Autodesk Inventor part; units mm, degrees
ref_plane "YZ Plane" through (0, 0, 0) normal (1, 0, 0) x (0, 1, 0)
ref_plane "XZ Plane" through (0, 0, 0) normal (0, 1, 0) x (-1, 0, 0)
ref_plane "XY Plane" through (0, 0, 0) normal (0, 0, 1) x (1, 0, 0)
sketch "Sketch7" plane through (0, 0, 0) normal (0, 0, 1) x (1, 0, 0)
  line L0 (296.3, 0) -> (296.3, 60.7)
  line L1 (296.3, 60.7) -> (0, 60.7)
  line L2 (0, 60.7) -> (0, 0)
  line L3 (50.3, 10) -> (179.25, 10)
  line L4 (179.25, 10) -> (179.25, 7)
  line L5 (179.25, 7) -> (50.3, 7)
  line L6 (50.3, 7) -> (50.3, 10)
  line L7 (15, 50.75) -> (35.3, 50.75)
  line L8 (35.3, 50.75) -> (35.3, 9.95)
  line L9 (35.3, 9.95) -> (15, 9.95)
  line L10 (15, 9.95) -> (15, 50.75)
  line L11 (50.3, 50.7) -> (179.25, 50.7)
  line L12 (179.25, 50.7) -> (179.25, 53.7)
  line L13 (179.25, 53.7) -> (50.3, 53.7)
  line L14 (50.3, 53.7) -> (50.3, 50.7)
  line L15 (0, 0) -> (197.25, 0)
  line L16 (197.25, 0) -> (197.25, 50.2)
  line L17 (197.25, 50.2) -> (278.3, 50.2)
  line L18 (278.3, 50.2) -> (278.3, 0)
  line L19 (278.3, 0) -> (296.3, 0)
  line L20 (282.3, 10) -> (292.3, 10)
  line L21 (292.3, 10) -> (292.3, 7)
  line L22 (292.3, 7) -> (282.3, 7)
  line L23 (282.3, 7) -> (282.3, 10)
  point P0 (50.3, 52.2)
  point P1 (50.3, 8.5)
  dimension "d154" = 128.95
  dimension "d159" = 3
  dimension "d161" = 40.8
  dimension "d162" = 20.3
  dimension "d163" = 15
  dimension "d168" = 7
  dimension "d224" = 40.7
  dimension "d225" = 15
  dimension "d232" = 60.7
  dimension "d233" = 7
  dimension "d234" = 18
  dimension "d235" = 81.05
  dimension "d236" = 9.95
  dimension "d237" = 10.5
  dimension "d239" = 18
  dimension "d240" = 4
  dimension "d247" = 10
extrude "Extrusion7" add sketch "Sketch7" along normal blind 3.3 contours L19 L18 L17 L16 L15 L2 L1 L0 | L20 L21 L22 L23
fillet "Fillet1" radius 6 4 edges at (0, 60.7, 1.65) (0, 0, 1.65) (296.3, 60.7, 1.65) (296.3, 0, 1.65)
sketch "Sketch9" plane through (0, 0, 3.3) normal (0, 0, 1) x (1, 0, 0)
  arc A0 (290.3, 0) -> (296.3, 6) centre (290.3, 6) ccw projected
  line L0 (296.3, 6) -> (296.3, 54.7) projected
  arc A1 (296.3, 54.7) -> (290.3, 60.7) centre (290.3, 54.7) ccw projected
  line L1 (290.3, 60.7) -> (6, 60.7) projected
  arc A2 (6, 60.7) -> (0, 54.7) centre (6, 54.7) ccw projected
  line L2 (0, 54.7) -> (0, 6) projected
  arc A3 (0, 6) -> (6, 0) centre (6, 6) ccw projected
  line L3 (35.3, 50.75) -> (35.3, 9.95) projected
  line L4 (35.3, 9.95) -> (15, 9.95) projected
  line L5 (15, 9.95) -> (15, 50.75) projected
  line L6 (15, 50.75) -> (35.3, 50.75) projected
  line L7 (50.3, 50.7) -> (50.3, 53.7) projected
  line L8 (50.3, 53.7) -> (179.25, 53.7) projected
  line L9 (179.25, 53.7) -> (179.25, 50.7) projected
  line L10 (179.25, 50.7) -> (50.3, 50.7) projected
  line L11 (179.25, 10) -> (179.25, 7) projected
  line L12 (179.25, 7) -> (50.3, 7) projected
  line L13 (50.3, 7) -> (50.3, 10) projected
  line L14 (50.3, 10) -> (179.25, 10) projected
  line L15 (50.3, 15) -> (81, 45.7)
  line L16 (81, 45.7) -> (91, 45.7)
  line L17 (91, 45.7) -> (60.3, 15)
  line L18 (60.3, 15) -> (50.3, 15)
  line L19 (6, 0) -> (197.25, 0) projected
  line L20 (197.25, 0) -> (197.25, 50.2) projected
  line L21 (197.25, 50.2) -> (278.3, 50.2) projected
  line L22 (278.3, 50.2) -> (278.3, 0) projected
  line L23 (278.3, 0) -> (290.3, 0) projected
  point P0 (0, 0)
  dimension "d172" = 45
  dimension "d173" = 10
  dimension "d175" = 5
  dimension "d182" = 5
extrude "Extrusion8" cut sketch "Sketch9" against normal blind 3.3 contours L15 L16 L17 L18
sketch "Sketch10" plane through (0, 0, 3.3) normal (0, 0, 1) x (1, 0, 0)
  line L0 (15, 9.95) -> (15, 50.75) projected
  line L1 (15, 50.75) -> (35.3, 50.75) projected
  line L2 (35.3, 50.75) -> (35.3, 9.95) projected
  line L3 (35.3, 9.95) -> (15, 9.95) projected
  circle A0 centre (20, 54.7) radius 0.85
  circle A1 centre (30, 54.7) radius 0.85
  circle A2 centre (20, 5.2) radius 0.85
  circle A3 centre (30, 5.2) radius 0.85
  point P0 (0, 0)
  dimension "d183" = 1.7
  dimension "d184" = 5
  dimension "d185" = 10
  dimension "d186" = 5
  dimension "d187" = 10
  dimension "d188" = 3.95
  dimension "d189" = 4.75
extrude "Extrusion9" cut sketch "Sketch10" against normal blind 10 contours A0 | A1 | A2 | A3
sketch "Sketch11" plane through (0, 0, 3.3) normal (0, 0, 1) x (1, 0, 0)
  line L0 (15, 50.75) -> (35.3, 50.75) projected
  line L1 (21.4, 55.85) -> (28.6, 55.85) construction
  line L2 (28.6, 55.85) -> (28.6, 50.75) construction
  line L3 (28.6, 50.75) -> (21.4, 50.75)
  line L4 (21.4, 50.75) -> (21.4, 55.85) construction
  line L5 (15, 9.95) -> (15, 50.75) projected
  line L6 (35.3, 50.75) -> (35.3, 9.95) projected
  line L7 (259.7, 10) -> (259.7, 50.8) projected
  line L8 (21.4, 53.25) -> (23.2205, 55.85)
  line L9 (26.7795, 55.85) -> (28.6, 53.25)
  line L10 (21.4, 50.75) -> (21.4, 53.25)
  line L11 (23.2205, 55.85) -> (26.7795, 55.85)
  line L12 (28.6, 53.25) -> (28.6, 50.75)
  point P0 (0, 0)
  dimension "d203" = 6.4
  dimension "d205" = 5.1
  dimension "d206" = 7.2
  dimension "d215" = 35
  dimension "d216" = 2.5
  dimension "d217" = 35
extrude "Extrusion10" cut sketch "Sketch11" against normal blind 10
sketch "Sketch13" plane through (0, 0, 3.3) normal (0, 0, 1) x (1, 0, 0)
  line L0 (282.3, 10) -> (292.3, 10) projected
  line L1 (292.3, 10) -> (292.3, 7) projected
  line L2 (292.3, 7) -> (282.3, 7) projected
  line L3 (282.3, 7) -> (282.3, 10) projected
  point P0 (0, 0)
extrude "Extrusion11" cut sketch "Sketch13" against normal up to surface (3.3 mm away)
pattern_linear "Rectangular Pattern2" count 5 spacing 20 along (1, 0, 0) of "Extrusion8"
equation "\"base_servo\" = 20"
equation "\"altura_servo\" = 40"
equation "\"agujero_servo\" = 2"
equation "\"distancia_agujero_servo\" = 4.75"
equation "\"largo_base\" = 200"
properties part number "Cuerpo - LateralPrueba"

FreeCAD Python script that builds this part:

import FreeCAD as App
import Part
import Sketcher
from FreeCAD import Vector
Q = App.Units.Quantity


def edges_at(feature, points):
    """Names of the edges that pass closest to the given points."""
    edges = feature.Shape.Edges
    near = lambda p: min(range(len(edges)), key=lambda i: edges[i].distToShape(Part.Vertex(*p))[0])
    return sorted({f"Edge{near(p) + 1}" for p in points})

doc = App.newDocument("Part")
body = doc.addObject("PartDesign::Body", "Body")

sketch1 = body.newObject("Sketcher::SketchObject", "Sketch")
sketch1.AttachmentSupport = (doc.getObject("XY_Plane"), [""])
sketch1.MapMode = "FlatFace"
sketch1.addGeometry(Part.LineSegment(Vector(278.3, 0, 0), Vector(296.3, 0, 0)), False)
sketch1.addGeometry(Part.LineSegment(Vector(296.3, 0, 0), Vector(296.3, 60.7, 0)), False)
sketch1.addGeometry(Part.LineSegment(Vector(296.3, 60.7, 0), Vector(0, 60.7, 0)), False)
sketch1.addGeometry(Part.LineSegment(Vector(0, 60.7, 0), Vector(0, 0, 0)), False)
sketch1.addGeometry(Part.LineSegment(Vector(0, 0, 0), Vector(197.2, 0, 0)), False)
sketch1.addGeometry(Part.LineSegment(Vector(197.2, 0, 0), Vector(197.2, 50.2, 0)), False)
sketch1.addGeometry(Part.LineSegment(Vector(197.2, 50.2, 0), Vector(278.3, 50.2, 0)), False)
sketch1.addGeometry(Part.LineSegment(Vector(278.3, 50.2, 0), Vector(278.3, 0, 0)), False)
sketch1.addGeometry(Part.LineSegment(Vector(50.3, 7, 0), Vector(50.3, 10, 0)), False)
sketch1.addGeometry(Part.LineSegment(Vector(50.3, 10, 0), Vector(179.2, 10, 0)), False)
sketch1.addGeometry(Part.LineSegment(Vector(179.2, 10, 0), Vector(179.2, 7, 0)), False)
sketch1.addGeometry(Part.LineSegment(Vector(179.2, 7, 0), Vector(50.3, 7, 0)), False)
sketch1.addGeometry(Part.LineSegment(Vector(15, 9.9, 0), Vector(15, 50.8, 0)), False)
sketch1.addGeometry(Part.LineSegment(Vector(15, 50.8, 0), Vector(35.3, 50.8, 0)), False)
sketch1.addGeometry(Part.LineSegment(Vector(35.3, 50.8, 0), Vector(35.3, 9.9, 0)), False)
sketch1.addGeometry(Part.LineSegment(Vector(35.3, 9.9, 0), Vector(15, 9.9, 0)), False)
sketch1.addGeometry(Part.LineSegment(Vector(179.2, 50.7, 0), Vector(50.3, 50.7, 0)), False)
sketch1.addGeometry(Part.LineSegment(Vector(50.3, 50.7, 0), Vector(50.3, 53.7, 0)), False)
sketch1.addGeometry(Part.LineSegment(Vector(50.3, 53.7, 0), Vector(179.2, 53.7, 0)), False)
sketch1.addGeometry(Part.LineSegment(Vector(179.2, 53.7, 0), Vector(179.2, 50.7, 0)), False)
sketch1.addConstraint(Sketcher.Constraint("Coincident", 0, 2, 1, 1))
sketch1.addConstraint(Sketcher.Constraint("Coincident", 1, 2, 2, 1))
sketch1.addConstraint(Sketcher.Constraint("Coincident", 2, 2, 3, 1))
sketch1.addConstraint(Sketcher.Constraint("Coincident", 3, 2, 4, 1))
sketch1.addConstraint(Sketcher.Constraint("Coincident", 4, 2, 5, 1))
sketch1.addConstraint(Sketcher.Constraint("Coincident", 5, 2, 6, 1))
sketch1.addConstraint(Sketcher.Constraint("Coincident", 6, 2, 7, 1))
sketch1.addConstraint(Sketcher.Constraint("Coincident", 7, 2, 0, 1))
sketch1.addConstraint(Sketcher.Constraint("Coincident", 8, 2, 9, 1))
sketch1.addConstraint(Sketcher.Constraint("Coincident", 9, 2, 10, 1))
sketch1.addConstraint(Sketcher.Constraint("Coincident", 10, 2, 11, 1))
sketch1.addConstraint(Sketcher.Constraint("Coincident", 11, 2, 8, 1))
sketch1.addConstraint(Sketcher.Constraint("Coincident", 12, 2, 13, 1))
sketch1.addConstraint(Sketcher.Constraint("Coincident", 13, 2, 14, 1))
sketch1.addConstraint(Sketcher.Constraint("Coincident", 14, 2, 15, 1))
sketch1.addConstraint(Sketcher.Constraint("Coincident", 15, 2, 12, 1))
sketch1.addConstraint(Sketcher.Constraint("Coincident", 16, 2, 17, 1))
sketch1.addConstraint(Sketcher.Constraint("Coincident", 17, 2, 18, 1))
sketch1.addConstraint(Sketcher.Constraint("Coincident", 18, 2, 19, 1))
sketch1.addConstraint(Sketcher.Constraint("Coincident", 19, 2, 16, 1))
sketch1.addConstraint(Sketcher.Constraint("Horizontal", 0))
sketch1.addConstraint(Sketcher.Constraint("Vertical", 1))
sketch1.addConstraint(Sketcher.Constraint("Horizontal", 2))
sketch1.addConstraint(Sketcher.Constraint("Vertical", 3))
sketch1.addConstraint(Sketcher.Constraint("Horizontal", 4))
sketch1.addConstraint(Sketcher.Constraint("Vertical", 5))
sketch1.addConstraint(Sketcher.Constraint("Horizontal", 6))
sketch1.addConstraint(Sketcher.Constraint("Vertical", 7))
sketch1.addConstraint(Sketcher.Constraint("Vertical", 8))
sketch1.addConstraint(Sketcher.Constraint("Horizontal", 9))
sketch1.addConstraint(Sketcher.Constraint("Vertical", 10))
sketch1.addConstraint(Sketcher.Constraint("Horizontal", 11))
sketch1.addConstraint(Sketcher.Constraint("Vertical", 12))
sketch1.addConstraint(Sketcher.Constraint("Horizontal", 13))
sketch1.addConstraint(Sketcher.Constraint("Vertical", 14))
sketch1.addConstraint(Sketcher.Constraint("Horizontal", 15))
sketch1.addConstraint(Sketcher.Constraint("Horizontal", 16))
sketch1.addConstraint(Sketcher.Constraint("Vertical", 17))
sketch1.addConstraint(Sketcher.Constraint("Horizontal", 18))
sketch1.addConstraint(Sketcher.Constraint("Vertical", 19))
sketch1.addConstraint(Sketcher.Constraint("Coincident", 3, 2, -1, 1))
sketch1.addConstraint(Sketcher.Constraint("PointOnObject", 0, 2, -1))
sketch1.addConstraint(Sketcher.Constraint("Vertical", 11, 2, 16, 2))
sketch1.addConstraint(Sketcher.Constraint("Vertical", 10, 2, 18, 2))
sketch1.addConstraint(Sketcher.Constraint("Equal", 10, 17))
sketch1.addConstraint(Sketcher.Constraint("DistanceX", 0, 1, 0, 2, 18.0))
sketch1.addConstraint(Sketcher.Constraint("DistanceY", 8, 1, 8, 2, 3.0))
sketch1.addConstraint(Sketcher.Constraint("DistanceX", 13, 1, 13, 2, 20.3))
sketch1.addConstraint(Sketcher.Constraint("DistanceY", 1, 1, 1, 2, 60.7))
sketch1.addConstraint(Sketcher.Constraint("DistanceY", 12, 1, 12, 2, 40.8))
sketch1.addConstraint(Sketcher.Constraint("DistanceY", -1, 1, 8, 2, 10.0))
sketch1.addConstraint(Sketcher.Constraint("DistanceX", -1, 1, 12, 2, 15.0))
sketch1.addConstraint(Sketcher.Constraint("DistanceX", 9, 2, 4, 2, 18.0))
sketch1.addConstraint(Sketcher.Constraint("DistanceX", 13, 2, 8, 2, 15.0))
sketch1.addConstraint(Sketcher.Constraint("DistanceX", 6, 1, 6, 2, 81.05))
sketch1.addConstraint(Sketcher.Constraint("DistanceX", 9, 1, 9, 2, 128.95))
sketch1.addConstraint(Sketcher.Constraint("DistanceY", 5, 2, 1, 2, 10.5))
sketch1.addConstraint(Sketcher.Constraint("DistanceY", 8, 2, 16, 2, 40.7))
sketch1.addConstraint(Sketcher.Constraint("DistanceY", -1, 1, 14, 2, 9.95))
pad1 = body.newObject("PartDesign::Pad", "Pad")
pad1.Profile = sketch1
pad1.Length = 3.3
doc.recompute()

fillet = body.newObject("PartDesign::Fillet", "Fillet")
fillet.Base = (pad1, edges_at(pad1, [
    (0, 60.7, 1.65),
    (0, 0, 1.65),
    (296.3, 60.7, 1.65),
    (296.3, 0, 1.65),
]))
fillet.Radius = 6

sketch2 = body.newObject("Sketcher::SketchObject", "Sketch001")
sketch2.AttachmentSupport = (doc.getObject("XY_Plane"), [""])
sketch2.MapMode = "FlatFace"
sketch2.AttachmentOffset = App.Placement(Vector(0, 0, 3.3), App.Rotation())
sketch2.addGeometry(Part.LineSegment(Vector(81, 46, 0), Vector(50, 15, 0)), False)
sketch2.addGeometry(Part.LineSegment(Vector(50, 15, 0), Vector(60, 15, 0)), False)
sketch2.addGeometry(Part.LineSegment(Vector(60, 15, 0), Vector(91, 46, 0)), False)
sketch2.addGeometry(Part.LineSegment(Vector(91, 46, 0), Vector(81, 46, 0)), False)
sketch2.addConstraint(Sketcher.Constraint("Coincident", 0, 2, 1, 1))
sketch2.addConstraint(Sketcher.Constraint("Coincident", 1, 2, 2, 1))
sketch2.addConstraint(Sketcher.Constraint("Coincident", 2, 2, 3, 1))
sketch2.addConstraint(Sketcher.Constraint("Coincident", 3, 2, 0, 1))
sketch2.addConstraint(Sketcher.Constraint("Horizontal", 1))
sketch2.addConstraint(Sketcher.Constraint("Horizontal", 3))
sketch2.addConstraint(Sketcher.Constraint("Parallel", 0, 2))
sketch2.addConstraint(Sketcher.Constraint("DistanceX", 1, 1, 1, 2, 10.0))
sketch2.addConstraint(Sketcher.Constraint("Angle", 2, Q("45 deg")))
sketch2.addConstraint(Sketcher.Constraint("DistanceY", -1, 1, 0, 2, 15.0))
sketch2.addConstraint(Sketcher.Constraint("DistanceX", -1, 1, 2, 2, 91.0))
sketch2.addConstraint(Sketcher.Constraint("DistanceX", -1, 1, 0, 2, 50.3))
pocket1 = body.newObject("PartDesign::Pocket", "Pocket")
pocket1.Profile = sketch2
pocket1.Length = 3.3

sketch3 = body.newObject("Sketcher::SketchObject", "Sketch002")
sketch3.AttachmentSupport = (doc.getObject("XY_Plane"), [""])
sketch3.MapMode = "FlatFace"
sketch3.AttachmentOffset = App.Placement(Vector(0, 0, 3.3), App.Rotation())
sketch3.addGeometry(Part.Circle(Vector(20, 54.7, 0), Vector(0, 0, 1), 0.8), False)
sketch3.addGeometry(Part.Circle(Vector(30, 54.7, 0), Vector(0, 0, 1), 0.8), False)
sketch3.addGeometry(Part.Circle(Vector(20, 5.2, 0), Vector(0, 0, 1), 0.8), False)
sketch3.addGeometry(Part.Circle(Vector(30, 5.2, 0), Vector(0, 0, 1), 0.8), False)
sketch3.addConstraint(Sketcher.Constraint("Equal", 0, 1))
sketch3.addConstraint(Sketcher.Constraint("Equal", 1, 2))
sketch3.addConstraint(Sketcher.Constraint("Equal", 2, 3))
sketch3.addConstraint(Sketcher.Constraint("Horizontal", 0, 3, 1, 3))
sketch3.addConstraint(Sketcher.Constraint("Horizontal", 2, 3, 3, 3))
sketch3.addConstraint(Sketcher.Constraint("Vertical", 0, 3, 2, 3))
sketch3.addConstraint(Sketcher.Constraint("Vertical", 1, 3, 3, 3))
sketch3.addConstraint(Sketcher.Constraint("Diameter", 0, 1.7))
sketch3.addConstraint(Sketcher.Constraint("DistanceX", 0, 3, 1, 3, 10.0))
sketch3.addConstraint(Sketcher.Constraint("DistanceX", -1, 1, 0, 3, 20.0))
sketch3.addConstraint(Sketcher.Constraint("DistanceY", -1, 1, 0, 3, 54.7))
sketch3.addConstraint(Sketcher.Constraint("DistanceY", -1, 1, 2, 3, 5.2))
pocket2 = body.newObject("PartDesign::Pocket", "Pocket001")
pocket2.Profile = sketch3
pocket2.Length = 10

sketch4 = body.newObject("Sketcher::SketchObject", "Sketch003")
sketch4.AttachmentSupport = (doc.getObject("XY_Plane"), [""])
sketch4.MapMode = "FlatFace"
sketch4.AttachmentOffset = App.Placement(Vector(0, 0, 3.3), App.Rotation())
sketch4.addGeometry(Part.LineSegment(Vector(21.4, 53.2, 0), Vector(21.4, 50.8, 0)), False)
sketch4.addGeometry(Part.LineSegment(Vector(21.4, 50.8, 0), Vector(28.6, 50.8, 0)), False)
sketch4.addGeometry(Part.LineSegment(Vector(28.6, 50.8, 0), Vector(28.6, 53.2, 0)), False)
sketch4.addGeometry(Part.LineSegment(Vector(28.6, 53.2, 0), Vector(26.8, 55.9, 0)), False)
sketch4.addGeometry(Part.LineSegment(Vector(26.8, 55.9, 0), Vector(23.2, 55.9, 0)), False)
sketch4.addGeometry(Part.LineSegment(Vector(23.2, 55.9, 0), Vector(21.4, 53.2, 0)), False)
sketch4.addConstraint(Sketcher.Constraint("Coincident", 0, 2, 1, 1))
sketch4.addConstraint(Sketcher.Constraint("Coincident", 1, 2, 2, 1))
sketch4.addConstraint(Sketcher.Constraint("Coincident", 2, 2, 3, 1))
sketch4.addConstraint(Sketcher.Constraint("Coincident", 3, 2, 4, 1))
sketch4.addConstraint(Sketcher.Constraint("Coincident", 4, 2, 5, 1))
sketch4.addConstraint(Sketcher.Constraint("Coincident", 5, 2, 0, 1))
sketch4.addConstraint(Sketcher.Constraint("Vertical", 0))
sketch4.addConstraint(Sketcher.Constraint("Horizontal", 1))
sketch4.addConstraint(Sketcher.Constraint("Vertical", 2))
sketch4.addConstraint(Sketcher.Constraint("Horizontal", 4))
sketch4.addConstraint(Sketcher.Constraint("Horizontal", 2, 2, 5, 2))
sketch4.addConstraint(Sketcher.Constraint("Equal", 3, 5))
sketch4.addConstraint(Sketcher.Constraint("DistanceX", 1, 1, 1, 2, 7.2))
sketch4.addConstraint(Sketcher.Constraint("DistanceY", 0, 2, 0, 1, 2.5))
sketch4.addConstraint(Sketcher.Constraint("DistanceY", 1, 2, 3, 2, 5.1))
sketch4.addConstraint(Sketcher.Constraint("Angle", 3, Q("124.9994 deg")))
sketch4.addConstraint(Sketcher.Constraint("DistanceX", -1, 1, 0, 2, 21.4))
sketch4.addConstraint(Sketcher.Constraint("DistanceY", -1, 1, 0, 2, 50.75))
pocket3 = body.newObject("PartDesign::Pocket", "Pocket002")
pocket3.Profile = sketch4
pocket3.Length = 10

sketch5 = body.newObject("Sketcher::SketchObject", "Sketch004")
sketch5.AttachmentSupport = (doc.getObject("XY_Plane"), [""])
sketch5.MapMode = "FlatFace"
sketch5.AttachmentOffset = App.Placement(Vector(0, 0, 3.3), App.Rotation())
sketch5.addGeometry(Part.LineSegment(Vector(292.3, 10, 0), Vector(282.3, 10, 0)), False)
sketch5.addGeometry(Part.LineSegment(Vector(282.3, 10, 0), Vector(282.3, 7, 0)), False)
sketch5.addGeometry(Part.LineSegment(Vector(282.3, 7, 0), Vector(292.3, 7, 0)), False)
sketch5.addGeometry(Part.LineSegment(Vector(292.3, 7, 0), Vector(292.3, 10, 0)), False)
sketch5.addConstraint(Sketcher.Constraint("Coincident", 0, 2, 1, 1))
sketch5.addConstraint(Sketcher.Constraint("Coincident", 1, 2, 2, 1))
sketch5.addConstraint(Sketcher.Constraint("Coincident", 2, 2, 3, 1))
sketch5.addConstraint(Sketcher.Constraint("Coincident", 3, 2, 0, 1))
sketch5.addConstraint(Sketcher.Constraint("Horizontal", 0))
sketch5.addConstraint(Sketcher.Constraint("Vertical", 1))
sketch5.addConstraint(Sketcher.Constraint("Horizontal", 2))
sketch5.addConstraint(Sketcher.Constraint("Vertical", 3))
sketch5.addConstraint(Sketcher.Constraint("DistanceX", 0, 2, 0, 1, 10.0))
sketch5.addConstraint(Sketcher.Constraint("DistanceY", 1, 2, 1, 1, 3.0))
sketch5.addConstraint(Sketcher.Constraint("DistanceY", -1, 1, 0, 2, 10.0))
sketch5.addConstraint(Sketcher.Constraint("DistanceX", -1, 1, 0, 2, 282.3))
pocket4 = body.newObject("PartDesign::Pocket", "Pocket003")
pocket4.Profile = sketch5
pocket4.Length = 3.3
doc.recompute()

linearpattern = body.newObject("PartDesign::LinearPattern", "LinearPattern")
linearpattern.Originals = [pocket1]
linearpattern.Direction = (doc.getObject("X_Axis"), [""])
linearpattern.Mode = "offset"
linearpattern.Offset = 20
linearpattern.Occurrences = 5
body.Tip = linearpattern

doc.recompute()
